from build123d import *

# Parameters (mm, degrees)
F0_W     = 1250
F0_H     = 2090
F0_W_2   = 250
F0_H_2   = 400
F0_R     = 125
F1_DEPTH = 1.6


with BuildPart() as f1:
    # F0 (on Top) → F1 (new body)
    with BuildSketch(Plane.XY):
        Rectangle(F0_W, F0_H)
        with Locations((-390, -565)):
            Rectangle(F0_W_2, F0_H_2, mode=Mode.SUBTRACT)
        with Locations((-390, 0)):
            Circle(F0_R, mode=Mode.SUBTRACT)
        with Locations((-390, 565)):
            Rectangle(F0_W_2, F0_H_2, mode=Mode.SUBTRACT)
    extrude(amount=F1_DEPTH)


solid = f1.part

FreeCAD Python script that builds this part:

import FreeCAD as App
import Part
import Sketcher
from FreeCAD import Vector

doc = App.newDocument("Part")
body = doc.addObject("PartDesign::Body", "Body")

# Sketch on XY plane
sketch1 = doc.addObject("Sketcher::SketchObject", "Sketch")
body.addObject(sketch1)
sketch1.AttachmentSupport = (doc.XY_Plane, [""])
sketch1.MapMode = "FlatFace"
sketch1.addGeometry([
    Part.LineSegment(Vector(-625, 1045, 0), Vector(-625, -1045, 0)),  # 0
    Part.LineSegment(Vector(-625, -1045, 0), Vector(625, -1045, 0)),  # 1
    Part.LineSegment(Vector(625, -1045, 0), Vector(625, 1045, 0)),  # 2
    Part.LineSegment(Vector(625, 1045, 0), Vector(-625, 1045, 0)),  # 3
    Part.LineSegment(Vector(-265, -765, 0), Vector(-515, -765, 0)),  # 4
    Part.LineSegment(Vector(-515, -765, 0), Vector(-515, -365, 0)),  # 5
    Part.LineSegment(Vector(-515, -365, 0), Vector(-265, -365, 0)),  # 6
    Part.LineSegment(Vector(-265, -365, 0), Vector(-265, -765, 0)),  # 7
    Part.Circle(Vector(-390, 0, 0), Vector(0, 0, 1), 125),  # 8
    Part.LineSegment(Vector(-265, 365, 0), Vector(-515, 365, 0)),  # 9
    Part.LineSegment(Vector(-515, 365, 0), Vector(-515, 765, 0)),  # 10
    Part.LineSegment(Vector(-515, 765, 0), Vector(-265, 765, 0)),  # 11
    Part.LineSegment(Vector(-265, 765, 0), Vector(-265, 365, 0)),  # 12
], False)
sketch1.addConstraint([
    Sketcher.Constraint("Coincident", 0, 2, 1, 1),
    Sketcher.Constraint("Coincident", 1, 2, 2, 1),
    Sketcher.Constraint("Coincident", 2, 2, 3, 1),
    Sketcher.Constraint("Coincident", 3, 2, 0, 1),
    Sketcher.Constraint("Coincident", 4, 2, 5, 1),
    Sketcher.Constraint("Coincident", 5, 2, 6, 1),
    Sketcher.Constraint("Coincident", 6, 2, 7, 1),
    Sketcher.Constraint("Coincident", 7, 2, 4, 1),
    Sketcher.Constraint("Coincident", 9, 2, 10, 1),
    Sketcher.Constraint("Coincident", 10, 2, 11, 1),
    Sketcher.Constraint("Coincident", 11, 2, 12, 1),
    Sketcher.Constraint("Coincident", 12, 2, 9, 1),
    Sketcher.Constraint("Vertical", 0),
    Sketcher.Constraint("Horizontal", 1),
    Sketcher.Constraint("Vertical", 2),
    Sketcher.Constraint("Horizontal", 3),
    Sketcher.Constraint("Horizontal", 4),
    Sketcher.Constraint("Vertical", 5),
    Sketcher.Constraint("Horizontal", 6),
    Sketcher.Constraint("Vertical", 7),
    Sketcher.Constraint("Horizontal", 9),
    Sketcher.Constraint("Vertical", 10),
    Sketcher.Constraint("Horizontal", 11),
    Sketcher.Constraint("Vertical", 12),
    Sketcher.Constraint("Symmetric", 0, 2, 2, 2, -1, 1),
    Sketcher.Constraint("Symmetric", 5, 2, 9, 2, -1),
    Sketcher.Constraint("Symmetric", 7, 2, 11, 2, -1),
    Sketcher.Constraint("PointOnObject", 8, 3, -1),
    Sketcher.Constraint("Diameter", 8, 250.0),
    Sketcher.Constraint("DistanceX", 1, 1, 1, 2, 1250.0),
    Sketcher.Constraint("DistanceX", 4, 2, 4, 1, 250.0),
    Sketcher.Constraint("DistanceY", 0, 2, 0, 1, 2090.0),
    Sketcher.Constraint("DistanceY", 5, 1, 5, 2, 400.0),
    Sketcher.Constraint("DistanceX", 8, 3, -1, 1, 390.0),
    Sketcher.Constraint("DistanceX", 4, 2, -1, 1, 515.0),
    Sketcher.Constraint("DistanceY", 4, 2, -1, 1, 765.0),
])
pad1 = doc.addObject("PartDesign::Pad", "Pad")
body.addObject(pad1)
pad1.Profile = sketch1
pad1.Length = 1.6

doc.recompute()
